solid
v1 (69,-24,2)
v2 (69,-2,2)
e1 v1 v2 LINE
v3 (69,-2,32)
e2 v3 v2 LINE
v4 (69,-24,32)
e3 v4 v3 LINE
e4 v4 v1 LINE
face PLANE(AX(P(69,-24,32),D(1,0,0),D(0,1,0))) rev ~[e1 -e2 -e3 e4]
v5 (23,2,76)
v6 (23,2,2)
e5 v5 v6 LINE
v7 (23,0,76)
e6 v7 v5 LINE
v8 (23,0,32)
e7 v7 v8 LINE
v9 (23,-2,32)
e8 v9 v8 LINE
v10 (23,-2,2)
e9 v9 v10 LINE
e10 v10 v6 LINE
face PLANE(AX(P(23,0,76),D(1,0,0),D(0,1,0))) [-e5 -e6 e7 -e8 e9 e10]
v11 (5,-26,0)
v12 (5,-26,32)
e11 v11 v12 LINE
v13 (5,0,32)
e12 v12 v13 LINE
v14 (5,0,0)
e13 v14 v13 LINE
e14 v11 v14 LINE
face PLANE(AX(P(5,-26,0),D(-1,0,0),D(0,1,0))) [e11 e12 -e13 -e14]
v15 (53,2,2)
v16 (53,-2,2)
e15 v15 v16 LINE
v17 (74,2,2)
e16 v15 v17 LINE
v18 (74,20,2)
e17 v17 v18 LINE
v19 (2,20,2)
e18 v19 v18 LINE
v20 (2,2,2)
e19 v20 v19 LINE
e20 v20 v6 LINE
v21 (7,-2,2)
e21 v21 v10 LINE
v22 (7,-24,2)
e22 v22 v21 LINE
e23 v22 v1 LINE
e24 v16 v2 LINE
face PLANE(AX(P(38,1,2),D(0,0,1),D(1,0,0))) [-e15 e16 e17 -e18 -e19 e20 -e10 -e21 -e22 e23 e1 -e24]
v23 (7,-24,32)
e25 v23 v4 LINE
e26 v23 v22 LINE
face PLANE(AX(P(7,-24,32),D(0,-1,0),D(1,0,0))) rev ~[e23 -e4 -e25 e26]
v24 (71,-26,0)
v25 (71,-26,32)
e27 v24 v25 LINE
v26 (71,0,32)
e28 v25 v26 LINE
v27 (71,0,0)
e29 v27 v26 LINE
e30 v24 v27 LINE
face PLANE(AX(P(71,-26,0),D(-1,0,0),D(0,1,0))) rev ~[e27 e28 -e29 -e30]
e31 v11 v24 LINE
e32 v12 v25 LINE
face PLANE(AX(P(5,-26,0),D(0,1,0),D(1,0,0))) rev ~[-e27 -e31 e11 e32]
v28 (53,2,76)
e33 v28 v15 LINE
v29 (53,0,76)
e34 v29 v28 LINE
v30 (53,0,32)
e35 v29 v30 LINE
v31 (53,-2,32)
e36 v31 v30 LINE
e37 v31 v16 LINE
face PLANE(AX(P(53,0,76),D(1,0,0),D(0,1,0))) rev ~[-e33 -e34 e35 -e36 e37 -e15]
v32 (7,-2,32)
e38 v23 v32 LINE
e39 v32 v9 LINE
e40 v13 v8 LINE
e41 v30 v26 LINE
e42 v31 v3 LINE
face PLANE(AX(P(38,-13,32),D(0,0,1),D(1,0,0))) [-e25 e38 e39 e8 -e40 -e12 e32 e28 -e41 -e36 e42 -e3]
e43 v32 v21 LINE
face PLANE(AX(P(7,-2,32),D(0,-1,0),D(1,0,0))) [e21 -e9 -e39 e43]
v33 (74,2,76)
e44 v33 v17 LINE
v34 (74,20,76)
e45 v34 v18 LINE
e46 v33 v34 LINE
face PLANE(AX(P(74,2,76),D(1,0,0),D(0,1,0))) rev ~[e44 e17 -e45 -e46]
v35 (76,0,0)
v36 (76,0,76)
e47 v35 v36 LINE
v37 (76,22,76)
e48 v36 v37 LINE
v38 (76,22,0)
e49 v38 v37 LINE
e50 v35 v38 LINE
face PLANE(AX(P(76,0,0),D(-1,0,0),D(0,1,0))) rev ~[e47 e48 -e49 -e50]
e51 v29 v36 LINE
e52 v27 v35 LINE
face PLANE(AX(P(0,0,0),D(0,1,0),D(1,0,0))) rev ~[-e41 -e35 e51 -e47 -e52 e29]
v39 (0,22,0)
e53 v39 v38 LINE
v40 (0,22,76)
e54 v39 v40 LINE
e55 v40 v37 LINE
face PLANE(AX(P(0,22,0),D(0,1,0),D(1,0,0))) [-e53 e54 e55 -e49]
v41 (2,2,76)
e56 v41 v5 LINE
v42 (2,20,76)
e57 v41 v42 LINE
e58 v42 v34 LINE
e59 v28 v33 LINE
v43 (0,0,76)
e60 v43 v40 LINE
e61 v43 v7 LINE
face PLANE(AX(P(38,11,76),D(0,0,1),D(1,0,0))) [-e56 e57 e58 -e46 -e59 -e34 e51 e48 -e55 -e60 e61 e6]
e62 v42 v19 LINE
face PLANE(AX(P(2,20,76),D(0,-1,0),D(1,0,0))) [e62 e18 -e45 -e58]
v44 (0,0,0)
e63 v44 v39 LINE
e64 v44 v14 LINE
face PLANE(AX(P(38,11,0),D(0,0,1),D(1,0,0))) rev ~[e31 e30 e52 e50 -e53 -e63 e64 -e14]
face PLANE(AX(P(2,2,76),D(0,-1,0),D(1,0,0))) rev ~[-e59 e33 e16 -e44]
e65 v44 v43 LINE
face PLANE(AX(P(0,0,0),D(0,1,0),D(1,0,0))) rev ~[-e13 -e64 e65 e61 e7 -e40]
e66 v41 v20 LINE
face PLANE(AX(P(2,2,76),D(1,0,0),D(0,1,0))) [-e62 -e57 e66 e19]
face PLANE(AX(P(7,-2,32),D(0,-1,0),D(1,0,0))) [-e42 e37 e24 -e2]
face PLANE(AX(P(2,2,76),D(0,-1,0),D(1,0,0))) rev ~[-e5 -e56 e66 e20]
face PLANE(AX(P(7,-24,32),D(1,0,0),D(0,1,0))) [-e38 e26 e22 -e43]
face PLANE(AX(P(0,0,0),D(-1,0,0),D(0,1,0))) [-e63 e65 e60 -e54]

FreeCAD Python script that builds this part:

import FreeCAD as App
import Part
import Sketcher
from FreeCAD import Vector


def add_polygon(sketch, points):
    """Adds a closed chain of lines whose ends are joined by coincident constraints."""
    first, n = sketch.GeometryCount, len(points)
    for a, b in zip(points, points[1:] + points[:1]):
        sketch.addGeometry(Part.LineSegment(App.Vector(*a, 0), App.Vector(*b, 0)), False)
    for i in range(n):
        sketch.addConstraint(Sketcher.Constraint("Coincident", first + i, 2, first + (i + 1) % n, 1))

doc = App.newDocument("Part")
body = doc.addObject("PartDesign::Body", "Body")

# Sketch on XY plane
sketch1 = body.newObject("Sketcher::SketchObject", "Sketch")
sketch1.AttachmentSupport = (doc.getObject("XY_Plane"), [""])
sketch1.MapMode = "FlatFace"
add_polygon(sketch1, [(0, 22), (0, 0), (76, 0), (76, 22)])  # lines 0-3
sketch1.addConstraint([
    Sketcher.Constraint("Vertical", 0),
    Sketcher.Constraint("Horizontal", 1),
    Sketcher.Constraint("Vertical", 2),
    Sketcher.Constraint("Horizontal", 3),
    Sketcher.Constraint("Coincident", 0, 2, -1, 1),
    Sketcher.Constraint("DistanceX", 1, 1, 1, 2, 76.0),
    Sketcher.Constraint("DistanceY", 0, 2, 0, 1, 22.0),
])
pad1 = body.newObject("PartDesign::Pad", "Pad")
pad1.Profile = sketch1
pad1.Length = 76

# Sketch on XY plane
sketch2 = body.newObject("Sketcher::SketchObject", "Sketch001")
sketch2.AttachmentSupport = (doc.getObject("XY_Plane"), [""])
sketch2.MapMode = "FlatFace"
add_polygon(sketch2, [(5, 0), (5, -26), (71, -26), (71, 0)])  # lines 0-3
sketch2.addConstraint([
    Sketcher.Constraint("Vertical", 0),
    Sketcher.Constraint("Horizontal", 1),
    Sketcher.Constraint("Vertical", 2),
    Sketcher.Constraint("Horizontal", 3),
    Sketcher.Constraint("PointOnObject", 2, 2, -1),
    Sketcher.Constraint("DistanceX", 1, 1, 1, 2, 66.0),
    Sketcher.Constraint("DistanceY", 0, 2, 0, 1, 26.0),
    Sketcher.Constraint("DistanceX", -1, 1, 0, 2, 5.0),
])
pad2 = body.newObject("PartDesign::Pad", "Pad001")
pad2.Profile = sketch2
pad2.Length = 32

# Sketch on XY plane
sketch3 = body.newObject("Sketcher::SketchObject", "Sketch002")
sketch3.AttachmentSupport = (doc.getObject("XY_Plane"), [""])
sketch3.MapMode = "FlatFace"
sketch3.AttachmentOffset = App.Placement(Vector(0, 0, 32), App.Rotation())
add_polygon(sketch3, [(7, -2), (7, -24), (69, -24), (69, -2)])  # lines 0-3
sketch3.addConstraint([
    Sketcher.Constraint("Vertical", 0),
    Sketcher.Constraint("Horizontal", 1),
    Sketcher.Constraint("Vertical", 2),
    Sketcher.Constraint("Horizontal", 3),
    Sketcher.Constraint("DistanceX", 1, 1, 1, 2, 62.0),
    Sketcher.Constraint("DistanceY", 0, 2, 0, 1, 22.0),
    Sketcher.Constraint("DistanceX", -1, 1, 0, 2, 7.0),
    Sketcher.Constraint("DistanceY", 0, 2, -1, 1, 24.0),
])
pocket1 = body.newObject("PartDesign::Pocket", "Pocket")
pocket1.Profile = sketch3
pocket1.Length = 30

# Sketch on XY plane
sketch4 = body.newObject("Sketcher::SketchObject", "Sketch003")
sketch4.AttachmentSupport = (doc.getObject("XY_Plane"), [""])
sketch4.MapMode = "FlatFace"
sketch4.AttachmentOffset = App.Placement(Vector(0, 0, 76), App.Rotation())
add_polygon(sketch4, [(2, 20), (2, 2), (74, 2), (74, 20)])  # lines 0-3
sketch4.addConstraint([
    Sketcher.Constraint("Vertical", 0),
    Sketcher.Constraint("Horizontal", 1),
    Sketcher.Constraint("Vertical", 2),
    Sketcher.Constraint("Horizontal", 3),
    Sketcher.Constraint("DistanceX", 1, 1, 1, 2, 72.0),
    Sketcher.Constraint("DistanceY", 0, 2, 0, 1, 18.0),
    Sketcher.Constraint("DistanceX", -1, 1, 0, 2, 2.0),
    Sketcher.Constraint("DistanceY", -1, 1, 0, 2, 2.0),
])
pocket2 = body.newObject("PartDesign::Pocket", "Pocket001")
pocket2.Profile = sketch4
pocket2.Length = 74

# Sketch on XY plane
sketch5 = body.newObject("Sketcher::SketchObject", "Sketch004")
sketch5.AttachmentSupport = (doc.getObject("XY_Plane"), [""])
sketch5.MapMode = "FlatFace"
sketch5.AttachmentOffset = App.Placement(Vector(0, 0, 32), App.Rotation())
add_polygon(sketch5, [(23, 0), (23, -2), (53, -2), (53, 0)])  # lines 0-3
sketch5.addConstraint([
    Sketcher.Constraint("Vertical", 0),
    Sketcher.Constraint("Horizontal", 1),
    Sketcher.Constraint("Vertical", 2),
    Sketcher.Constraint("Horizontal", 3),
    Sketcher.Constraint("PointOnObject", 2, 2, -1),
    Sketcher.Constraint("DistanceX", 1, 1, 1, 2, 30.0),
    Sketcher.Constraint("DistanceY", 0, 2, 0, 1, 2.0),
    Sketcher.Constraint("DistanceX", -1, 1, 0, 2, 23.0),
])
pocket3 = body.newObject("PartDesign::Pocket", "Pocket002")
pocket3.Profile = sketch5
pocket3.Length = 30

# Sketch on XY plane
sketch6 = body.newObject("Sketcher::SketchObject", "Sketch005")
sketch6.AttachmentSupport = (doc.getObject("XY_Plane"), [""])
sketch6.MapMode = "FlatFace"
sketch6.AttachmentOffset = App.Placement(Vector(0, 0, 76), App.Rotation())
add_polygon(sketch6, [(23, 2), (23, 0), (53, 0), (53, 2)])  # lines 0-3
sketch6.addConstraint([
    Sketcher.Constraint("Vertical", 0),
    Sketcher.Constraint("Horizontal", 1),
    Sketcher.Constraint("Vertical", 2),
    Sketcher.Constraint("Horizontal", 3),
    Sketcher.Constraint("PointOnObject", 0, 2, -1),
    Sketcher.Constraint("DistanceX", 1, 1, 1, 2, 30.0),
    Sketcher.Constraint("DistanceY", 0, 2, 0, 1, 2.0),
    Sketcher.Constraint("DistanceX", -1, 1, 0, 2, 23.0),
])
pocket4 = body.newObject("PartDesign::Pocket", "Pocket003")
pocket4.Profile = sketch6
pocket4.Length = 74

doc.recompute()
